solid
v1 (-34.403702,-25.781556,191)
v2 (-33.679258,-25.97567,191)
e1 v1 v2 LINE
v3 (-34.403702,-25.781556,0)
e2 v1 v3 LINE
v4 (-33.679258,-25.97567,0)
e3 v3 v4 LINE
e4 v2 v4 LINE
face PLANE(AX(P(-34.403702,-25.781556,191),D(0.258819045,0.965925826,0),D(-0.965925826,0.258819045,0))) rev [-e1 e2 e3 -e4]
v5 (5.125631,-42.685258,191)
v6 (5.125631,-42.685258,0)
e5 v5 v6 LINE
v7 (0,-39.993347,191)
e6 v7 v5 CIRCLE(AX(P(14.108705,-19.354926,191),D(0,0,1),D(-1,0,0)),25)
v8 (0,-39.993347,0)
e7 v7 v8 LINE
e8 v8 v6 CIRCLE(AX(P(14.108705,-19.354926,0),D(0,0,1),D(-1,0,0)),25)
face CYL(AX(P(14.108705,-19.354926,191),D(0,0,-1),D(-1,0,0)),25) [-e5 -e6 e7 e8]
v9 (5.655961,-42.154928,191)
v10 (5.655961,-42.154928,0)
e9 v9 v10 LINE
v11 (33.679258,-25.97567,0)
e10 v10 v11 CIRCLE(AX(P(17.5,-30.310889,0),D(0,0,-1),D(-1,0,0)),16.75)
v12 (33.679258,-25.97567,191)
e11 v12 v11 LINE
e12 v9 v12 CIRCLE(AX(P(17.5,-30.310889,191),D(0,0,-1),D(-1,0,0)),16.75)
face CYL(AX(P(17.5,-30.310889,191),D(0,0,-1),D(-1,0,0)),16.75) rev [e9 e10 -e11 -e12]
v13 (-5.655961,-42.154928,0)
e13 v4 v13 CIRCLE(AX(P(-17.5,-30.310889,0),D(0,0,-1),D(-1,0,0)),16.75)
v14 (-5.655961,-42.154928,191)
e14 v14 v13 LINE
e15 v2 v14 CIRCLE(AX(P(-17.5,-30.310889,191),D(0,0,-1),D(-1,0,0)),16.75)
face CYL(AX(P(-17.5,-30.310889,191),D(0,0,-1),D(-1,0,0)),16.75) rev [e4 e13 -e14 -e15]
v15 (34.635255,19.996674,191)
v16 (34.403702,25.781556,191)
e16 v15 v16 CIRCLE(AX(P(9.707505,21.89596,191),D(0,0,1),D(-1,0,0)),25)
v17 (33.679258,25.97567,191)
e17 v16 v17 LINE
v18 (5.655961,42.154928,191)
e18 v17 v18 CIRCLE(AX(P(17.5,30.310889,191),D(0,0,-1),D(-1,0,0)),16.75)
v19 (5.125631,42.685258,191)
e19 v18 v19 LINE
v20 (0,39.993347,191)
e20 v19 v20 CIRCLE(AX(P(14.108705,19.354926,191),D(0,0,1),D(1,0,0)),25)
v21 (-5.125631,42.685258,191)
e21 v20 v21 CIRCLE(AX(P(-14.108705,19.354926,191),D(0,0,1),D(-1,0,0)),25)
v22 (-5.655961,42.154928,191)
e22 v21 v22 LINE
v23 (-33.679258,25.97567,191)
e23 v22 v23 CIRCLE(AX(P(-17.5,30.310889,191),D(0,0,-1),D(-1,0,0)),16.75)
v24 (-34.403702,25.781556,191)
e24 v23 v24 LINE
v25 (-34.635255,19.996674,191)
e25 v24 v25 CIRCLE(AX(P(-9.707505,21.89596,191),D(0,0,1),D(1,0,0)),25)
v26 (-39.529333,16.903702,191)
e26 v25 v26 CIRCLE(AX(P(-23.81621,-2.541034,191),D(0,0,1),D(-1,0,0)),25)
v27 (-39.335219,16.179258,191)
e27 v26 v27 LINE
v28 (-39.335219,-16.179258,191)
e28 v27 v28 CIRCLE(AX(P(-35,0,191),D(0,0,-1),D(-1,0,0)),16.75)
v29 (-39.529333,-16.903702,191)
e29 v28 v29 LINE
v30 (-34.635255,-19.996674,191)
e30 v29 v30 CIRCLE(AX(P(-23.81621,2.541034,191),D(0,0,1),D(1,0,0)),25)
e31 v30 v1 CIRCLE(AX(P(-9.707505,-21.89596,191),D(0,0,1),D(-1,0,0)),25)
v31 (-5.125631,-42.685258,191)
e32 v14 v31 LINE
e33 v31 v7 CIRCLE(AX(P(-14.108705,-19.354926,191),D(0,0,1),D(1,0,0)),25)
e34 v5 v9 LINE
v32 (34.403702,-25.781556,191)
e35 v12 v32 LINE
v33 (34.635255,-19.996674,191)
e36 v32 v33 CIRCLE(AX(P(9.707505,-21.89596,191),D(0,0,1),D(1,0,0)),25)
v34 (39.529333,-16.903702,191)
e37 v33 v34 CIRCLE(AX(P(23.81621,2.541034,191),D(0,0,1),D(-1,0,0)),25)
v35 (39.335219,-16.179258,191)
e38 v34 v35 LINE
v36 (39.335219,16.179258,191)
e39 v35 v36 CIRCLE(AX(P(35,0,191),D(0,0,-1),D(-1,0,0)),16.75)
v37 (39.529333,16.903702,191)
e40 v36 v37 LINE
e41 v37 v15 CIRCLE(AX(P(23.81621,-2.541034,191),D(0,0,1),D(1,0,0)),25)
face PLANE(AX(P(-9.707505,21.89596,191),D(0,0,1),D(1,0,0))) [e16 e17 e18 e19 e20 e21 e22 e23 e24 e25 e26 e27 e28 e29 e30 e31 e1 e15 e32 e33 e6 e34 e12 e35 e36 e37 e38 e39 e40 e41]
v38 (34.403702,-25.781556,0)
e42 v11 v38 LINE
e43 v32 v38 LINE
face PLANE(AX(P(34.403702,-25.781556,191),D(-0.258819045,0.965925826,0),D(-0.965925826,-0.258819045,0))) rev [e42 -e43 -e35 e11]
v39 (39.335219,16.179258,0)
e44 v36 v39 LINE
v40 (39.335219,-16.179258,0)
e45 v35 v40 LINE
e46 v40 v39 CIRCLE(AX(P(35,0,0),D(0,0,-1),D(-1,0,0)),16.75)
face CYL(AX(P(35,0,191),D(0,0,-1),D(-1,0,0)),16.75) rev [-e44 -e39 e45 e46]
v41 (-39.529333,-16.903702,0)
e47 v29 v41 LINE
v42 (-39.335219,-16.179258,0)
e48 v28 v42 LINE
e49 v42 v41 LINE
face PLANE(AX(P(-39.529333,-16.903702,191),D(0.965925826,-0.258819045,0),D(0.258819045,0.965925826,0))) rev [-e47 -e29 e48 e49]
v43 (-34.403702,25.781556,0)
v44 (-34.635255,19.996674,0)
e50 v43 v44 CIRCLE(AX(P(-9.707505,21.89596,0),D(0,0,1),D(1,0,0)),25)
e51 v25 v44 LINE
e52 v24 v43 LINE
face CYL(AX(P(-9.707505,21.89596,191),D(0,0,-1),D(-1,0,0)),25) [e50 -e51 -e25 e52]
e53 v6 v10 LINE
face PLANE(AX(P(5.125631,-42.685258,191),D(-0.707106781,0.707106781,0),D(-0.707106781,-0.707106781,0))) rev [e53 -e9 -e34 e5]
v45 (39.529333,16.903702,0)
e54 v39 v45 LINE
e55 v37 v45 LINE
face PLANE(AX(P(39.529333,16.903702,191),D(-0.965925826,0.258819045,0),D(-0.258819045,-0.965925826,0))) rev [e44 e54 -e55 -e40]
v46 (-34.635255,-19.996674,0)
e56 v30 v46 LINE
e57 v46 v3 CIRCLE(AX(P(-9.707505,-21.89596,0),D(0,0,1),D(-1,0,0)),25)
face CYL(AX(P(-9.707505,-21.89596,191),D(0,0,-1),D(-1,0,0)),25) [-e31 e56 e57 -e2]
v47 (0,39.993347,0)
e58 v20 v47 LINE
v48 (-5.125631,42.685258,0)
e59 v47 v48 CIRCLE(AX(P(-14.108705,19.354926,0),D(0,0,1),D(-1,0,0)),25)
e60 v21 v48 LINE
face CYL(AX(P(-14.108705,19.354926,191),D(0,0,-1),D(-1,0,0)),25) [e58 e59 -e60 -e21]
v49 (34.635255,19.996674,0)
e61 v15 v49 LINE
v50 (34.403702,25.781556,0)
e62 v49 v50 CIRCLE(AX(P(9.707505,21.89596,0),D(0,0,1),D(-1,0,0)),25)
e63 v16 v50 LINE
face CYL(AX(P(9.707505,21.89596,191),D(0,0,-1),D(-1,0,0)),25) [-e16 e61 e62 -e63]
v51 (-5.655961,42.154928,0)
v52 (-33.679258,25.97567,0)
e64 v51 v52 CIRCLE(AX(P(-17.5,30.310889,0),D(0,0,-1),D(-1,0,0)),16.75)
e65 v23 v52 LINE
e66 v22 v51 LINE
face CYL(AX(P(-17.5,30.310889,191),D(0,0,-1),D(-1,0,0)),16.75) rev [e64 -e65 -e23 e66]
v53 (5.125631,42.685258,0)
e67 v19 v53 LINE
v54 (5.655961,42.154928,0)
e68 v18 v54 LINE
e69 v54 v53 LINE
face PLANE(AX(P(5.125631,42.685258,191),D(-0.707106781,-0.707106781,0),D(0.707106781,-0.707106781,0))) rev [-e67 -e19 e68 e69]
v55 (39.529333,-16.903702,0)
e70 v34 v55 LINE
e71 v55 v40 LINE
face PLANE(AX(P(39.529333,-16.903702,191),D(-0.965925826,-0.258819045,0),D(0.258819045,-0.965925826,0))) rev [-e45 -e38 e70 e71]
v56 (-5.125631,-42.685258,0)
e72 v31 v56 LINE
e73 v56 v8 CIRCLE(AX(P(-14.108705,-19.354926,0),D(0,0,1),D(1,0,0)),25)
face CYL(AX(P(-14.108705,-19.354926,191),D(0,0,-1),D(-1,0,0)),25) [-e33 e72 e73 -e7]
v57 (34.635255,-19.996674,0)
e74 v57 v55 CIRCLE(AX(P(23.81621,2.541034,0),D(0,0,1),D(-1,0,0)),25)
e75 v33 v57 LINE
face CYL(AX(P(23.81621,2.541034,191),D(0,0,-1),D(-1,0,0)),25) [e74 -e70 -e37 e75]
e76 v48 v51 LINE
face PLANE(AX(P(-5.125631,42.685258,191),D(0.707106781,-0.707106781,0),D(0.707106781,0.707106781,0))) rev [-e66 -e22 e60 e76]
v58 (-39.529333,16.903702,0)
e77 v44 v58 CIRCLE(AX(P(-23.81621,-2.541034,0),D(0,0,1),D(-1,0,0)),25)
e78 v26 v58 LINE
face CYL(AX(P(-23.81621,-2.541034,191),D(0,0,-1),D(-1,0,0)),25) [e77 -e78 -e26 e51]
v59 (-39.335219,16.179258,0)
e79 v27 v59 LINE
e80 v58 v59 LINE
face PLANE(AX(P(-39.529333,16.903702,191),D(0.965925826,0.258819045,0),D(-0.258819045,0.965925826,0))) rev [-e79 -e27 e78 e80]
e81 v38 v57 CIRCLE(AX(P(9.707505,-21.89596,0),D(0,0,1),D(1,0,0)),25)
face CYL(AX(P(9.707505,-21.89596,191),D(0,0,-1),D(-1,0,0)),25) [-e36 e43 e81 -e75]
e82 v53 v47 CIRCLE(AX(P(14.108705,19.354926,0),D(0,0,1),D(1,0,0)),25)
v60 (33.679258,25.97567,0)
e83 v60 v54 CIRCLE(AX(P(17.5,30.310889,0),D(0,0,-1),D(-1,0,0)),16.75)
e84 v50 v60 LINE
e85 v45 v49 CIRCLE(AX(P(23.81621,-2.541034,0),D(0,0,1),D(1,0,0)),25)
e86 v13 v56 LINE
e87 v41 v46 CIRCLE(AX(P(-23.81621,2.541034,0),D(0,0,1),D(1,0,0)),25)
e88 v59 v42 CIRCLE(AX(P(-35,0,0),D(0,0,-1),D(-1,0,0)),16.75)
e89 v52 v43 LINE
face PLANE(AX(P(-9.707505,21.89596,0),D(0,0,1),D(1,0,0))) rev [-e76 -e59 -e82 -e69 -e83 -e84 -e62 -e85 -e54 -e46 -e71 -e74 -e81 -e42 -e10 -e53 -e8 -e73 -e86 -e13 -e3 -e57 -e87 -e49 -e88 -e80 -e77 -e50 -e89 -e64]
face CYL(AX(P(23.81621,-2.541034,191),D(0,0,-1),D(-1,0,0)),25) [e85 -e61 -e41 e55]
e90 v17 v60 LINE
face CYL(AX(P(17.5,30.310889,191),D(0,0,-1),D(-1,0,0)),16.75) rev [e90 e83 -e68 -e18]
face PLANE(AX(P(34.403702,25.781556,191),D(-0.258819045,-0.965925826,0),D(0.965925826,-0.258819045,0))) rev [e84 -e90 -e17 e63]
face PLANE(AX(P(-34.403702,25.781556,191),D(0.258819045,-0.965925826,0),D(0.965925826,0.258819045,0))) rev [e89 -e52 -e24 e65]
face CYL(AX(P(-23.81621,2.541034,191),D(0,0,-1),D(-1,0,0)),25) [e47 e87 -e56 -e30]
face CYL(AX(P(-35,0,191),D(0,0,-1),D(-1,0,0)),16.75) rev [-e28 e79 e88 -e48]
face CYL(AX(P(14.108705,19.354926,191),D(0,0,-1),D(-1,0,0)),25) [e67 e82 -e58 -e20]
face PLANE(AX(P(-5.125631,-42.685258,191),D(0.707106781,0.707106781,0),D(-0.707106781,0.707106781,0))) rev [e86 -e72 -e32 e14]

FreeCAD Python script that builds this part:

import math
import FreeCAD as App
import Part
import Sketcher
Q = App.Units.Quantity

doc = App.newDocument("Part")
body = doc.addObject("PartDesign::Body", "Body")

# Sketch on XY plane
sketch1 = body.newObject("Sketcher::SketchObject", "Sketch")
sketch1.AttachmentSupport = (doc.getObject("XY_Plane"), [""])
sketch1.MapMode = "FlatFace"
sketch1.addGeometry(Part.LineSegment(App.Vector(-39.5, 16.9, 0), App.Vector(-39.3, 16.2, 0)), False)
sketch1.addGeometry(Part.ArcOfCircle(Part.Circle(App.Vector(-35, 0, 0), App.Vector(0, 0, 1), 16.8), math.radians(-105), math.radians(105)), False)
sketch1.addGeometry(Part.LineSegment(App.Vector(-39.3, -16.2, 0), App.Vector(-39.5, -16.9, 0)), False)
sketch1.addGeometry(Part.ArcOfCircle(Part.Circle(App.Vector(-23.8, 2.5, 0), App.Vector(0, 0, 1), 25), math.radians(-128.94), math.radians(-115.64)), False)
sketch1.addGeometry(Part.ArcOfCircle(Part.Circle(App.Vector(-9.7, -21.9, 0), App.Vector(0, 0, 1), 25), math.radians(175.64), math.radians(188.94)), False)
sketch1.addGeometry(Part.LineSegment(App.Vector(-34.4, -25.8, 0), App.Vector(-33.7, -26, 0)), False)
sketch1.addGeometry(Part.ArcOfCircle(Part.Circle(App.Vector(-17.5, -30.3, 0), App.Vector(0, 0, 1), 16.8), math.radians(-45), math.radians(165)), False)
sketch1.addGeometry(Part.LineSegment(App.Vector(-5.7, -42.2, 0), App.Vector(-5.1, -42.7, 0)), False)
sketch1.addGeometry(Part.ArcOfCircle(Part.Circle(App.Vector(-14.1, -19.4, 0), App.Vector(0, 0, 1), 25), math.radians(-68.94), math.radians(-55.64)), False)
sketch1.addGeometry(Part.ArcOfCircle(Part.Circle(App.Vector(14.1, -19.4, 0), App.Vector(0, 0, 1), 25), math.radians(-124.36), math.radians(-111.06)), False)
sketch1.addGeometry(Part.LineSegment(App.Vector(5.1, -42.7, 0), App.Vector(5.7, -42.2, 0)), False)
sketch1.addGeometry(Part.ArcOfCircle(Part.Circle(App.Vector(17.5, -30.3, 0), App.Vector(0, 0, 1), 16.8), math.radians(15), math.radians(225)), False)
sketch1.addGeometry(Part.LineSegment(App.Vector(33.7, -26, 0), App.Vector(34.4, -25.8, 0)), False)
sketch1.addGeometry(Part.ArcOfCircle(Part.Circle(App.Vector(9.7, -21.9, 0), App.Vector(0, 0, 1), 25), math.radians(-8.94), math.radians(4.36)), False)
sketch1.addGeometry(Part.ArcOfCircle(Part.Circle(App.Vector(23.8, 2.5, 0), App.Vector(0, 0, 1), 25), math.radians(-64.36), math.radians(-51.06)), False)
sketch1.addGeometry(Part.LineSegment(App.Vector(39.5, -16.9, 0), App.Vector(39.3, -16.2, 0)), False)
sketch1.addGeometry(Part.ArcOfCircle(Part.Circle(App.Vector(35, 0, 0), App.Vector(0, 0, 1), 16.8), math.radians(75), math.radians(285)), False)
sketch1.addGeometry(Part.LineSegment(App.Vector(39.3, 16.2, 0), App.Vector(39.5, 16.9, 0)), False)
sketch1.addGeometry(Part.ArcOfCircle(Part.Circle(App.Vector(23.8, -2.5, 0), App.Vector(0, 0, 1), 25), math.radians(51.06), math.radians(64.36)), False)
sketch1.addGeometry(Part.ArcOfCircle(Part.Circle(App.Vector(9.7, 21.9, 0), App.Vector(0, 0, 1), 25), math.radians(-4.36), math.radians(8.94)), False)
sketch1.addGeometry(Part.LineSegment(App.Vector(34.4, 25.8, 0), App.Vector(33.7, 26, 0)), False)
sketch1.addGeometry(Part.ArcOfCircle(Part.Circle(App.Vector(17.5, 30.3, 0), App.Vector(0, 0, 1), 16.8), math.radians(135), math.radians(345)), False)
sketch1.addGeometry(Part.LineSegment(App.Vector(5.7, 42.2, 0), App.Vector(5.1, 42.7, 0)), False)
sketch1.addGeometry(Part.ArcOfCircle(Part.Circle(App.Vector(14.1, 19.4, 0), App.Vector(0, 0, 1), 25), math.radians(111.06), math.radians(124.36)), False)
sketch1.addGeometry(Part.ArcOfCircle(Part.Circle(App.Vector(-14.1, 19.4, 0), App.Vector(0, 0, 1), 25), math.radians(55.64), math.radians(68.94)), False)
sketch1.addGeometry(Part.LineSegment(App.Vector(-5.1, 42.7, 0), App.Vector(-5.7, 42.2, 0)), False)
sketch1.addGeometry(Part.ArcOfCircle(Part.Circle(App.Vector(-17.5, 30.3, 0), App.Vector(0, 0, 1), 16.8), math.radians(-165), math.radians(45)), False)
sketch1.addGeometry(Part.LineSegment(App.Vector(-33.7, 26, 0), App.Vector(-34.4, 25.8, 0)), False)
sketch1.addGeometry(Part.ArcOfCircle(Part.Circle(App.Vector(-9.7, 21.9, 0), App.Vector(0, 0, 1), 25), math.radians(171.06), math.radians(184.36)), False)
sketch1.addGeometry(Part.ArcOfCircle(Part.Circle(App.Vector(-23.8, -2.5, 0), App.Vector(0, 0, 1), 25), math.radians(115.64), math.radians(128.94)), False)
sketch1.addConstraint(Sketcher.Constraint("Coincident", 0, 2, 1, 2))
sketch1.addConstraint(Sketcher.Constraint("Coincident", 1, 1, 2, 1))
sketch1.addConstraint(Sketcher.Constraint("Coincident", 2, 2, 3, 1))
sketch1.addConstraint(Sketcher.Constraint("Coincident", 3, 2, 4, 1))
sketch1.addConstraint(Sketcher.Constraint("Coincident", 4, 2, 5, 1))
sketch1.addConstraint(Sketcher.Constraint("Coincident", 5, 2, 6, 2))
sketch1.addConstraint(Sketcher.Constraint("Coincident", 6, 1, 7, 1))
sketch1.addConstraint(Sketcher.Constraint("Coincident", 7, 2, 8, 1))
sketch1.addConstraint(Sketcher.Constraint("Coincident", 8, 2, 9, 1))
sketch1.addConstraint(Sketcher.Constraint("Coincident", 9, 2, 10, 1))
sketch1.addConstraint(Sketcher.Constraint("Coincident", 10, 2, 11, 2))
sketch1.addConstraint(Sketcher.Constraint("Coincident", 11, 1, 12, 1))
sketch1.addConstraint(Sketcher.Constraint("Coincident", 12, 2, 13, 1))
sketch1.addConstraint(Sketcher.Constraint("Coincident", 13, 2, 14, 1))
sketch1.addConstraint(Sketcher.Constraint("Coincident", 14, 2, 15, 1))
sketch1.addConstraint(Sketcher.Constraint("Coincident", 15, 2, 16, 2))
sketch1.addConstraint(Sketcher.Constraint("Coincident", 16, 1, 17, 1))
sketch1.addConstraint(Sketcher.Constraint("Coincident", 17, 2, 18, 1))
sketch1.addConstraint(Sketcher.Constraint("Coincident", 18, 2, 19, 1))
sketch1.addConstraint(Sketcher.Constraint("Coincident", 19, 2, 20, 1))
sketch1.addConstraint(Sketcher.Constraint("Coincident", 20, 2, 21, 2))
sketch1.addConstraint(Sketcher.Constraint("Coincident", 21, 1, 22, 1))
sketch1.addConstraint(Sketcher.Constraint("Coincident", 22, 2, 23, 1))
sketch1.addConstraint(Sketcher.Constraint("Coincident", 23, 2, 24, 1))
sketch1.addConstraint(Sketcher.Constraint("Coincident", 24, 2, 25, 1))
sketch1.addConstraint(Sketcher.Constraint("Coincident", 25, 2, 26, 2))
sketch1.addConstraint(Sketcher.Constraint("Coincident", 26, 1, 27, 1))
sketch1.addConstraint(Sketcher.Constraint("Coincident", 27, 2, 28, 1))
sketch1.addConstraint(Sketcher.Constraint("Coincident", 28, 2, 29, 1))
sketch1.addConstraint(Sketcher.Constraint("Coincident", 29, 2, 0, 1))
sketch1.addConstraint(Sketcher.Constraint("Equal", 3, 4))
sketch1.addConstraint(Sketcher.Constraint("Equal", 1, 6))
sketch1.addConstraint(Sketcher.Constraint("Equal", 4, 8))
sketch1.addConstraint(Sketcher.Constraint("Equal", 8, 9))
sketch1.addConstraint(Sketcher.Constraint("Equal", 6, 11))
sketch1.addConstraint(Sketcher.Constraint("Equal", 9, 13))
sketch1.addConstraint(Sketcher.Constraint("Equal", 13, 14))
sketch1.addConstraint(Sketcher.Constraint("Equal", 11, 16))
sketch1.addConstraint(Sketcher.Constraint("Equal", 14, 18))
sketch1.addConstraint(Sketcher.Constraint("Equal", 18, 19))
sketch1.addConstraint(Sketcher.Constraint("Equal", 16, 21))
sketch1.addConstraint(Sketcher.Constraint("Equal", 19, 23))
sketch1.addConstraint(Sketcher.Constraint("Equal", 23, 24))
sketch1.addConstraint(Sketcher.Constraint("Equal", 21, 26))
sketch1.addConstraint(Sketcher.Constraint("Equal", 24, 28))
sketch1.addConstraint(Sketcher.Constraint("Equal", 28, 29))
sketch1.addConstraint(Sketcher.Constraint("Symmetric", 1, 3, 16, 3, -1, 1))
sketch1.addConstraint(Sketcher.Constraint("Symmetric", 3, 3, 18, 3, -1, 1))
sketch1.addConstraint(Sketcher.Constraint("Symmetric", 4, 3, 19, 3, -1, 1))
sketch1.addConstraint(Sketcher.Constraint("Symmetric", 6, 3, 21, 3, -1, 1))
sketch1.addConstraint(Sketcher.Constraint("Symmetric", 8, 3, 23, 3, -1, 1))
sketch1.addConstraint(Sketcher.Constraint("Symmetric", 9, 3, 24, 3, -1, 1))
sketch1.addConstraint(Sketcher.Constraint("Symmetric", 11, 3, 26, 3, -1, 1))
sketch1.addConstraint(Sketcher.Constraint("Symmetric", 13, 3, 28, 3, -1, 1))
sketch1.addConstraint(Sketcher.Constraint("Symmetric", 14, 3, 29, 3, -1, 1))
sketch1.addConstraint(Sketcher.Constraint("Symmetric", 8, 3, 9, 3, -2))
sketch1.addConstraint(Sketcher.Constraint("Symmetric", 6, 3, 11, 3, -2))
sketch1.addConstraint(Sketcher.Constraint("Symmetric", 4, 3, 13, 3, -2))
sketch1.addConstraint(Sketcher.Constraint("Symmetric", 3, 3, 14, 3, -2))
sketch1.addConstraint(Sketcher.Constraint("Symmetric", 1, 1, 15, 2, -2))
sketch1.addConstraint(Sketcher.Constraint("Perpendicular", 2, 5))
sketch1.addConstraint(Sketcher.Constraint("Perpendicular", 7, 10))
sketch1.addConstraint(Sketcher.Constraint("Perpendicular", 0, 12))
sketch1.addConstraint(Sketcher.Constraint("Perpendicular", 12, 15))
sketch1.addConstraint(Sketcher.Constraint("Perpendicular", 5, 17))
sketch1.addConstraint(Sketcher.Constraint("Perpendicular", 17, 20))
sketch1.addConstraint(Sketcher.Constraint("Perpendicular", 10, 22))
sketch1.addConstraint(Sketcher.Constraint("Perpendicular", 22, 25))
sketch1.addConstraint(Sketcher.Constraint("Perpendicular", 15, 27))
sketch1.addConstraint(Sketcher.Constraint("Horizontal", 7, 2, 9, 2))
sketch1.addConstraint(Sketcher.Constraint("Horizontal", 6, 1, 10, 2))
sketch1.addConstraint(Sketcher.Constraint("Horizontal", 5, 2, 11, 1))
sketch1.addConstraint(Sketcher.Constraint("Horizontal", 4, 2, 12, 2))
sketch1.addConstraint(Sketcher.Constraint("Horizontal", 0, 2, 16, 1))
sketch1.addConstraint(Sketcher.Constraint("Horizontal", 22, 2, 24, 2))
sketch1.addConstraint(Sketcher.Constraint("Horizontal", 20, 2, 26, 1))
sketch1.addConstraint(Sketcher.Constraint("Vertical", 0, 2, 1, 1))
sketch1.addConstraint(Sketcher.Constraint("Vertical", 12, 2, 19, 2))
sketch1.addConstraint(Sketcher.Constraint("Vertical", 10, 2, 21, 1))
sketch1.addConstraint(Sketcher.Constraint("Equal", 2, 5))
sketch1.addConstraint(Sketcher.Constraint("Equal", 5, 7))
sketch1.addConstraint(Sketcher.Constraint("Radius", 3, 25.0))
sketch1.addConstraint(Sketcher.Constraint("Angle", 0, Q("-75 deg")))
sketch1.addConstraint(Sketcher.Constraint("Radius", 1, 16.75))
sketch1.addConstraint(Sketcher.Constraint("DistanceX", 1, 3, -1, 1, 35.0))
sketch1.addConstraint(Sketcher.Constraint("DistanceX", 6, 3, 11, 3, 35.0))
sketch1.addConstraint(Sketcher.Constraint("DistanceY", 6, 1, 8, 3, 22.800002))
sketch1.addConstraint(Sketcher.Constraint("Distance", 0, 0.75))
sketch1.addConstraint(Sketcher.Constraint("DistanceY", 2, 2, -1, 1, 16.903702))
sketch1.addConstraint(Sketcher.Constraint("DistanceX", 4, 2, -1, 1, 34.403702))
sketch1.addConstraint(Sketcher.Constraint("DistanceX", 8, 3, 4, 3, 4.4012))
sketch1.addConstraint(Sketcher.Constraint("DistanceY", 4, 2, 1, 1, 9.602298))
sketch1.addConstraint(Sketcher.Constraint("DistanceY", 7, 2, 4, 3, 20.789298))
sketch1.addConstraint(Sketcher.Constraint("DistanceX", 3, 3, -1, 1, 23.81621))
pad1 = body.newObject("PartDesign::Pad", "Pad")
pad1.Profile = sketch1
pad1.Length = 191

doc.recompute()
